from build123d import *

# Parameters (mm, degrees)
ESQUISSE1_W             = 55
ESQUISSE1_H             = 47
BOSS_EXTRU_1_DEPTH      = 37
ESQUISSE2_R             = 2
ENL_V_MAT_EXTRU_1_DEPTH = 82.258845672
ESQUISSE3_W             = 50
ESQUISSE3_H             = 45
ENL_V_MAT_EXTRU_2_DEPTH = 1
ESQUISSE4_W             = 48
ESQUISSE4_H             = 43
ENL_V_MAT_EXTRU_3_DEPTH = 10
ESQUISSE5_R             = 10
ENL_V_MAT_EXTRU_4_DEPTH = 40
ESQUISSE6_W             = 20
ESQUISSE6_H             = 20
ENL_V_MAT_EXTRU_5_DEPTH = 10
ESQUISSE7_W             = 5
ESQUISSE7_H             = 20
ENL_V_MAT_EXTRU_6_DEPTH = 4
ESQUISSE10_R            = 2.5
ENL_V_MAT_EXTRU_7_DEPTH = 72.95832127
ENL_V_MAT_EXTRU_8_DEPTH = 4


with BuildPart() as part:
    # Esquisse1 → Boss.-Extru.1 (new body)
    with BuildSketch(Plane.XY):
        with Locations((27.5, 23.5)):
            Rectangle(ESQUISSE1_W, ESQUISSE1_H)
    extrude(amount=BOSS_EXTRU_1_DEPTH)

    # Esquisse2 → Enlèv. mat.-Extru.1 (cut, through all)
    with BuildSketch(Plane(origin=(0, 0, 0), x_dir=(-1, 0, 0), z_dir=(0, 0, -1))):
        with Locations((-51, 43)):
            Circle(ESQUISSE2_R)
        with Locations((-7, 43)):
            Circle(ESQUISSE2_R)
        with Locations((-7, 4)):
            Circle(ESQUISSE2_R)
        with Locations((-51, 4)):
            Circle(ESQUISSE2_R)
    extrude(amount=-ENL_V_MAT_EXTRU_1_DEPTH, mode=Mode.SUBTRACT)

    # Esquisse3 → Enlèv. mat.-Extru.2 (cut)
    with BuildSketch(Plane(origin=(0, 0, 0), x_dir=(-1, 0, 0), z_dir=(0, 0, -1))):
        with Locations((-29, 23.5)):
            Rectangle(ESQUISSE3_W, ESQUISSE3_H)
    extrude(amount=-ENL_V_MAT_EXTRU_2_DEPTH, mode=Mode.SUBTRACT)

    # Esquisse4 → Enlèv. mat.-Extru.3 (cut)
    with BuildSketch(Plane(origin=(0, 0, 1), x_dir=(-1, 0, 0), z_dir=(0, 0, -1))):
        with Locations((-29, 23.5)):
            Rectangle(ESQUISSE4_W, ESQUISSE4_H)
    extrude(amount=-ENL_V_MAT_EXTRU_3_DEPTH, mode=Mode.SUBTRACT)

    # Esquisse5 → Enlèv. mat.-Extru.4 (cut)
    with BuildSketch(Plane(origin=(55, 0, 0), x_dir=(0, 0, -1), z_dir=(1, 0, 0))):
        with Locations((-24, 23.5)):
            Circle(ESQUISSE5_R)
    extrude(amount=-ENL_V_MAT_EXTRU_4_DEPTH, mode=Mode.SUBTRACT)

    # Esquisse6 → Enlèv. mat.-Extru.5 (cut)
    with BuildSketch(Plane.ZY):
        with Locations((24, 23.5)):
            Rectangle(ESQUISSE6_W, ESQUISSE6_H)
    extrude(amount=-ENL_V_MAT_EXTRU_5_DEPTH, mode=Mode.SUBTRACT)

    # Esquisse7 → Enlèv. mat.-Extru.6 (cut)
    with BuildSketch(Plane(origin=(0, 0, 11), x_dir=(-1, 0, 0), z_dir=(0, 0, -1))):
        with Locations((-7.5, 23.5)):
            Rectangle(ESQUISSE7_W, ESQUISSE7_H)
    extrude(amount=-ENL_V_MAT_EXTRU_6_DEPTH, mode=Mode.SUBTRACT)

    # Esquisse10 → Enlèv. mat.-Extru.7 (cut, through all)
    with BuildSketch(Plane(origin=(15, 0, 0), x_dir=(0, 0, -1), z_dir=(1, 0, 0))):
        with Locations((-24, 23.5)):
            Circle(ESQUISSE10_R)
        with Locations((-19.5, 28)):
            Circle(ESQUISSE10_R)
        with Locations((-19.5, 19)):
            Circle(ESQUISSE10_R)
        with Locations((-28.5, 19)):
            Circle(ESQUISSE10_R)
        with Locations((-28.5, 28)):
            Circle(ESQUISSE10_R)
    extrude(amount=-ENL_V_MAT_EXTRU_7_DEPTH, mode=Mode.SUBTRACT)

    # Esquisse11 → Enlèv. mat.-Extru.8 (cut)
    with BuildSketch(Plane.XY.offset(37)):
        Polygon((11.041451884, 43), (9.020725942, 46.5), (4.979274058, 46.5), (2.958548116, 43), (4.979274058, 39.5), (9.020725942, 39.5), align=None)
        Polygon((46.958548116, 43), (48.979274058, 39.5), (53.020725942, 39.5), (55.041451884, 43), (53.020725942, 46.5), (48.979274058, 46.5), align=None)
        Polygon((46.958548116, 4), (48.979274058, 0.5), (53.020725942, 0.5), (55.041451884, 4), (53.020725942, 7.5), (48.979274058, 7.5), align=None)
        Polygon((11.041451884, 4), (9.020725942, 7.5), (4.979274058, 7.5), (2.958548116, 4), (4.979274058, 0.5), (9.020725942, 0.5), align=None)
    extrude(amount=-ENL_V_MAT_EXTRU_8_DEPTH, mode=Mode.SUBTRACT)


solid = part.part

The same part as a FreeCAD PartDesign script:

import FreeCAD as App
import Part
import Sketcher
from FreeCAD import Vector
Q = App.Units.Quantity

doc = App.newDocument("Part")
body = doc.addObject("PartDesign::Body", "Body")

# Sketch on XY plane
sketch1 = body.newObject("Sketcher::SketchObject", "Sketch")
sketch1.AttachmentSupport = (doc.getObject("XY_Plane"), [""])
sketch1.MapMode = "FlatFace"
sketch1.addGeometry(Part.LineSegment(Vector(0, 47, 0), Vector(0, 0, 0)), False)
sketch1.addGeometry(Part.LineSegment(Vector(0, 0, 0), Vector(55, 0, 0)), False)
sketch1.addGeometry(Part.LineSegment(Vector(55, 0, 0), Vector(55, 47, 0)), False)
sketch1.addGeometry(Part.LineSegment(Vector(55, 47, 0), Vector(0, 47, 0)), False)
sketch1.addConstraint(Sketcher.Constraint("Coincident", 0, 2, 1, 1))
sketch1.addConstraint(Sketcher.Constraint("Coincident", 1, 2, 2, 1))
sketch1.addConstraint(Sketcher.Constraint("Coincident", 2, 2, 3, 1))
sketch1.addConstraint(Sketcher.Constraint("Coincident", 3, 2, 0, 1))
sketch1.addConstraint(Sketcher.Constraint("Vertical", 0))
sketch1.addConstraint(Sketcher.Constraint("Horizontal", 1))
sketch1.addConstraint(Sketcher.Constraint("Vertical", 2))
sketch1.addConstraint(Sketcher.Constraint("Horizontal", 3))
sketch1.addConstraint(Sketcher.Constraint("Coincident", 0, 2, -1, 1))
sketch1.addConstraint(Sketcher.Constraint("DistanceX", 1, 1, 1, 2, 55.0))
sketch1.addConstraint(Sketcher.Constraint("DistanceY", 0, 2, 0, 1, 47.0))
pad1 = body.newObject("PartDesign::Pad", "Pad")
pad1.Profile = sketch1
pad1.Length = 37

# Sketch on XY plane
sketch2 = body.newObject("Sketcher::SketchObject", "Sketch001")
sketch2.AttachmentSupport = (doc.getObject("XY_Plane"), [""])
sketch2.MapMode = "FlatFace"
sketch2.addGeometry(Part.Circle(Vector(51, 43, 0), Vector(0, 0, 1), 2), False)
sketch2.addGeometry(Part.Circle(Vector(7, 43, 0), Vector(0, 0, 1), 2), False)
sketch2.addGeometry(Part.Circle(Vector(7, 4, 0), Vector(0, 0, 1), 2), False)
sketch2.addGeometry(Part.Circle(Vector(51, 4, 0), Vector(0, 0, 1), 2), False)
sketch2.addConstraint(Sketcher.Constraint("Equal", 0, 1))
sketch2.addConstraint(Sketcher.Constraint("Equal", 1, 2))
sketch2.addConstraint(Sketcher.Constraint("Equal", 2, 3))
sketch2.addConstraint(Sketcher.Constraint("Horizontal", 0, 3, 1, 3))
sketch2.addConstraint(Sketcher.Constraint("Horizontal", 2, 3, 3, 3))
sketch2.addConstraint(Sketcher.Constraint("Vertical", 1, 3, 2, 3))
sketch2.addConstraint(Sketcher.Constraint("Vertical", 0, 3, 3, 3))
sketch2.addConstraint(Sketcher.Constraint("Diameter", 0, 4.0))
sketch2.addConstraint(Sketcher.Constraint("DistanceX", -1, 1, 0, 3, 51.0))
sketch2.addConstraint(Sketcher.Constraint("DistanceY", -1, 1, 0, 3, 43.0))
sketch2.addConstraint(Sketcher.Constraint("DistanceX", -1, 1, 1, 3, 7.0))
sketch2.addConstraint(Sketcher.Constraint("DistanceY", -1, 1, 2, 3, 4.0))
pocket1 = body.newObject("PartDesign::Pocket", "Pocket")
pocket1.Profile = sketch2
pocket1.Type = "ThroughAll"
pocket1.Reversed = True

# Sketch on XY plane
sketch3 = body.newObject("Sketcher::SketchObject", "Sketch002")
sketch3.AttachmentSupport = (doc.getObject("XY_Plane"), [""])
sketch3.MapMode = "FlatFace"
sketch3.addGeometry(Part.LineSegment(Vector(54, 46, 0), Vector(54, 1, 0)), False)
sketch3.addGeometry(Part.LineSegment(Vector(54, 1, 0), Vector(4, 1, 0)), False)
sketch3.addGeometry(Part.LineSegment(Vector(4, 1, 0), Vector(4, 46, 0)), False)
sketch3.addGeometry(Part.LineSegment(Vector(4, 46, 0), Vector(54, 46, 0)), False)
sketch3.addConstraint(Sketcher.Constraint("Coincident", 0, 2, 1, 1))
sketch3.addConstraint(Sketcher.Constraint("Coincident", 1, 2, 2, 1))
sketch3.addConstraint(Sketcher.Constraint("Coincident", 2, 2, 3, 1))
sketch3.addConstraint(Sketcher.Constraint("Coincident", 3, 2, 0, 1))
sketch3.addConstraint(Sketcher.Constraint("Vertical", 0))
sketch3.addConstraint(Sketcher.Constraint("Horizontal", 1))
sketch3.addConstraint(Sketcher.Constraint("Vertical", 2))
sketch3.addConstraint(Sketcher.Constraint("Horizontal", 3))
sketch3.addConstraint(Sketcher.Constraint("DistanceX", 1, 2, 1, 1, 50.0))
sketch3.addConstraint(Sketcher.Constraint("DistanceY", 0, 2, 0, 1, 45.0))
sketch3.addConstraint(Sketcher.Constraint("DistanceX", -1, 1, 0, 2, 54.0))
sketch3.addConstraint(Sketcher.Constraint("DistanceY", -1, 1, 0, 2, 1.0))
pocket2 = body.newObject("PartDesign::Pocket", "Pocket001")
pocket2.Profile = sketch3
pocket2.Length = 1
pocket2.Reversed = True

# Sketch on XY plane
sketch4 = body.newObject("Sketcher::SketchObject", "Sketch003")
sketch4.AttachmentSupport = (doc.getObject("XY_Plane"), [""])
sketch4.MapMode = "FlatFace"
sketch4.AttachmentOffset = App.Placement(Vector(0, 0, 1), App.Rotation())
sketch4.addGeometry(Part.LineSegment(Vector(53, 45, 0), Vector(53, 2, 0)), False)
sketch4.addGeometry(Part.LineSegment(Vector(53, 2, 0), Vector(5, 2, 0)), False)
sketch4.addGeometry(Part.LineSegment(Vector(5, 2, 0), Vector(5, 45, 0)), False)
sketch4.addGeometry(Part.LineSegment(Vector(5, 45, 0), Vector(53, 45, 0)), False)
sketch4.addConstraint(Sketcher.Constraint("Coincident", 0, 2, 1, 1))
sketch4.addConstraint(Sketcher.Constraint("Coincident", 1, 2, 2, 1))
sketch4.addConstraint(Sketcher.Constraint("Coincident", 2, 2, 3, 1))
sketch4.addConstraint(Sketcher.Constraint("Coincident", 3, 2, 0, 1))
sketch4.addConstraint(Sketcher.Constraint("Vertical", 0))
sketch4.addConstraint(Sketcher.Constraint("Horizontal", 1))
sketch4.addConstraint(Sketcher.Constraint("Vertical", 2))
sketch4.addConstraint(Sketcher.Constraint("Horizontal", 3))
sketch4.addConstraint(Sketcher.Constraint("DistanceX", 1, 2, 1, 1, 48.0))
sketch4.addConstraint(Sketcher.Constraint("DistanceY", 0, 2, 0, 1, 43.0))
sketch4.addConstraint(Sketcher.Constraint("DistanceX", -1, 1, 0, 2, 53.0))
sketch4.addConstraint(Sketcher.Constraint("DistanceY", -1, 1, 0, 2, 2.0))
pocket3 = body.newObject("PartDesign::Pocket", "Pocket002")
pocket3.Profile = sketch4
pocket3.Length = 10
pocket3.Reversed = True

# Sketch on YZ plane
sketch5 = body.newObject("Sketcher::SketchObject", "Sketch004")
sketch5.AttachmentSupport = (doc.getObject("YZ_Plane"), [""])
sketch5.MapMode = "FlatFace"
sketch5.AttachmentOffset = App.Placement(Vector(0, 0, 55), App.Rotation())
sketch5.addGeometry(Part.Circle(Vector(24, 24, 0), Vector(0, 0, 1), 10), False)
sketch5.addConstraint(Sketcher.Constraint("Diameter", 0, 20.0))
sketch5.addConstraint(Sketcher.Constraint("DistanceY", -1, 1, 0, 3, 24.0))
sketch5.addConstraint(Sketcher.Constraint("DistanceX", -1, 1, 0, 3, 23.5))
pocket4 = body.newObject("PartDesign::Pocket", "Pocket003")
pocket4.Profile = sketch5
pocket4.Length = 40

# Sketch on YZ plane
sketch6 = body.newObject("Sketcher::SketchObject", "Sketch005")
sketch6.AttachmentSupport = (doc.getObject("YZ_Plane"), [""])
sketch6.MapMode = "FlatFace"
sketch6.addGeometry(Part.LineSegment(Vector(34, 14, 0), Vector(14, 14, 0)), False)
sketch6.addGeometry(Part.LineSegment(Vector(14, 14, 0), Vector(14, 34, 0)), False)
sketch6.addGeometry(Part.LineSegment(Vector(14, 34, 0), Vector(34, 34, 0)), False)
sketch6.addGeometry(Part.LineSegment(Vector(34, 34, 0), Vector(34, 14, 0)), False)
sketch6.addConstraint(Sketcher.Constraint("Coincident", 0, 2, 1, 1))
sketch6.addConstraint(Sketcher.Constraint("Coincident", 1, 2, 2, 1))
sketch6.addConstraint(Sketcher.Constraint("Coincident", 2, 2, 3, 1))
sketch6.addConstraint(Sketcher.Constraint("Coincident", 3, 2, 0, 1))
sketch6.addConstraint(Sketcher.Constraint("Horizontal", 0))
sketch6.addConstraint(Sketcher.Constraint("Vertical", 1))
sketch6.addConstraint(Sketcher.Constraint("Horizontal", 2))
sketch6.addConstraint(Sketcher.Constraint("Vertical", 3))
sketch6.addConstraint(Sketcher.Constraint("Equal", 2, 1))
sketch6.addConstraint(Sketcher.Constraint("DistanceX", 0, 2, 0, 1, 20.0))
sketch6.addConstraint(Sketcher.Constraint("DistanceY", -1, 1, 0, 2, 14.0))
sketch6.addConstraint(Sketcher.Constraint("DistanceX", -1, 1, 0, 2, 13.5))
pocket5 = body.newObject("PartDesign::Pocket", "Pocket004")
pocket5.Profile = sketch6
pocket5.Length = 10
pocket5.Reversed = True

# Sketch on XY plane
sketch7 = body.newObject("Sketcher::SketchObject", "Sketch006")
sketch7.AttachmentSupport = (doc.getObject("XY_Plane"), [""])
sketch7.MapMode = "FlatFace"
sketch7.AttachmentOffset = App.Placement(Vector(0, 0, 11), App.Rotation())
sketch7.addGeometry(Part.LineSegment(Vector(10, 34, 0), Vector(10, 14, 0)), False)
sketch7.addGeometry(Part.LineSegment(Vector(10, 14, 0), Vector(5, 14, 0)), False)
sketch7.addGeometry(Part.LineSegment(Vector(5, 14, 0), Vector(5, 34, 0)), False)
sketch7.addGeometry(Part.LineSegment(Vector(5, 34, 0), Vector(10, 34, 0)), False)
sketch7.addConstraint(Sketcher.Constraint("Coincident", 0, 2, 1, 1))
sketch7.addConstraint(Sketcher.Constraint("Coincident", 1, 2, 2, 1))
sketch7.addConstraint(Sketcher.Constraint("Coincident", 2, 2, 3, 1))
sketch7.addConstraint(Sketcher.Constraint("Coincident", 3, 2, 0, 1))
sketch7.addConstraint(Sketcher.Constraint("Vertical", 0))
sketch7.addConstraint(Sketcher.Constraint("Horizontal", 1))
sketch7.addConstraint(Sketcher.Constraint("Vertical", 2))
sketch7.addConstraint(Sketcher.Constraint("Horizontal", 3))
sketch7.addConstraint(Sketcher.Constraint("DistanceX", 1, 2, 1, 1, 5.0))
sketch7.addConstraint(Sketcher.Constraint("DistanceY", 0, 2, 0, 1, 20.0))
sketch7.addConstraint(Sketcher.Constraint("DistanceX", -1, 1, 0, 2, 10.0))
sketch7.addConstraint(Sketcher.Constraint("DistanceY", -1, 1, 0, 2, 13.5))
pocket6 = body.newObject("PartDesign::Pocket", "Pocket005")
pocket6.Profile = sketch7
pocket6.Length = 4
pocket6.Reversed = True

# Sketch on YZ plane
sketch8 = body.newObject("Sketcher::SketchObject", "Sketch007")
sketch8.AttachmentSupport = (doc.getObject("YZ_Plane"), [""])
sketch8.MapMode = "FlatFace"
sketch8.AttachmentOffset = App.Placement(Vector(0, 0, 15), App.Rotation())
sketch8.addGeometry(Part.Circle(Vector(23.5, 24, 0), Vector(0, 0, 1), 2.5), False)
sketch8.addGeometry(Part.Circle(Vector(28, 19.5, 0), Vector(0, 0, 1), 2.5), False)
sketch8.addGeometry(Part.Circle(Vector(19, 19.5, 0), Vector(0, 0, 1), 2.5), False)
sketch8.addGeometry(Part.Circle(Vector(19, 28.5, 0), Vector(0, 0, 1), 2.5), False)
sketch8.addGeometry(Part.Circle(Vector(28, 28.5, 0), Vector(0, 0, 1), 2.5), False)
sketch8.addConstraint(Sketcher.Constraint("Equal", 0, 1))
sketch8.addConstraint(Sketcher.Constraint("Equal", 1, 2))
sketch8.addConstraint(Sketcher.Constraint("Equal", 2, 3))
sketch8.addConstraint(Sketcher.Constraint("Equal", 3, 4))
sketch8.addConstraint(Sketcher.Constraint("Horizontal", 1, 3, 2, 3))
sketch8.addConstraint(Sketcher.Constraint("Horizontal", 3, 3, 4, 3))
sketch8.addConstraint(Sketcher.Constraint("Vertical", 2, 3, 3, 3))
sketch8.addConstraint(Sketcher.Constraint("Vertical", 1, 3, 4, 3))
sketch8.addConstraint(Sketcher.Constraint("Diameter", 0, 5.0))
sketch8.addConstraint(Sketcher.Constraint("DistanceY", -1, 1, 0, 3, 24.0))
sketch8.addConstraint(Sketcher.Constraint("DistanceX", -1, 1, 1, 3, 28.0))
sketch8.addConstraint(Sketcher.Constraint("DistanceX", -1, 1, 2, 3, 19.0))
sketch8.addConstraint(Sketcher.Constraint("DistanceY", 2, 3, 3, 3, 9.0))
sketch8.addConstraint(Sketcher.Constraint("DistanceX", -1, 1, 0, 3, 23.5))
sketch8.addConstraint(Sketcher.Constraint("DistanceY", -1, 1, 1, 3, 19.5))
pocket7 = body.newObject("PartDesign::Pocket", "Pocket006")
pocket7.Profile = sketch8
pocket7.Type = "ThroughAll"

# Sketch on XY plane
sketch9 = body.newObject("Sketcher::SketchObject", "Sketch008")
sketch9.AttachmentSupport = (doc.getObject("XY_Plane"), [""])
sketch9.MapMode = "FlatFace"
sketch9.AttachmentOffset = App.Placement(Vector(0, 0, 37), App.Rotation())
sketch9.addGeometry(Part.LineSegment(Vector(11, 43, 0), Vector(9, 46.5, 0)), False)
sketch9.addGeometry(Part.LineSegment(Vector(9, 46.5, 0), Vector(5, 46.5, 0)), False)
sketch9.addGeometry(Part.LineSegment(Vector(5, 46.5, 0), Vector(3, 43, 0)), False)
sketch9.addGeometry(Part.LineSegment(Vector(3, 43, 0), Vector(5, 39.5, 0)), False)
sketch9.addGeometry(Part.LineSegment(Vector(5, 39.5, 0), Vector(9, 39.5, 0)), False)
sketch9.addGeometry(Part.LineSegment(Vector(9, 39.5, 0), Vector(11, 43, 0)), False)
sketch9.addGeometry(Part.LineSegment(Vector(47, 43, 0), Vector(49, 39.5, 0)), False)
sketch9.addGeometry(Part.LineSegment(Vector(49, 39.5, 0), Vector(53, 39.5, 0)), False)
sketch9.addGeometry(Part.LineSegment(Vector(53, 39.5, 0), Vector(55, 43, 0)), False)
sketch9.addGeometry(Part.LineSegment(Vector(55, 43, 0), Vector(53, 46.5, 0)), False)
sketch9.addGeometry(Part.LineSegment(Vector(53, 46.5, 0), Vector(49, 46.5, 0)), False)
sketch9.addGeometry(Part.LineSegment(Vector(49, 46.5, 0), Vector(47, 43, 0)), False)
sketch9.addGeometry(Part.LineSegment(Vector(47, 4, 0), Vector(49, 0.5, 0)), False)
sketch9.addGeometry(Part.LineSegment(Vector(49, 0.5, 0), Vector(53, 0.5, 0)), False)
sketch9.addGeometry(Part.LineSegment(Vector(53, 0.5, 0), Vector(55, 4, 0)), False)
sketch9.addGeometry(Part.LineSegment(Vector(55, 4, 0), Vector(53, 7.5, 0)), False)
sketch9.addGeometry(Part.LineSegment(Vector(53, 7.5, 0), Vector(49, 7.5, 0)), False)
sketch9.addGeometry(Part.LineSegment(Vector(49, 7.5, 0), Vector(47, 4, 0)), False)
sketch9.addGeometry(Part.LineSegment(Vector(11, 4, 0), Vector(9, 7.5, 0)), False)
sketch9.addGeometry(Part.LineSegment(Vector(9, 7.5, 0), Vector(5, 7.5, 0)), False)
sketch9.addGeometry(Part.LineSegment(Vector(5, 7.5, 0), Vector(3, 4, 0)), False)
sketch9.addGeometry(Part.LineSegment(Vector(3, 4, 0), Vector(5, 0.5, 0)), False)
sketch9.addGeometry(Part.LineSegment(Vector(5, 0.5, 0), Vector(9, 0.5, 0)), False)
sketch9.addGeometry(Part.LineSegment(Vector(9, 0.5, 0), Vector(11, 4, 0)), False)
sketch9.addConstraint(Sketcher.Constraint("Coincident", 0, 2, 1, 1))
sketch9.addConstraint(Sketcher.Constraint("Coincident", 1, 2, 2, 1))
sketch9.addConstraint(Sketcher.Constraint("Coincident", 2, 2, 3, 1))
sketch9.addConstraint(Sketcher.Constraint("Coincident", 3, 2, 4, 1))
sketch9.addConstraint(Sketcher.Constraint("Coincident", 4, 2, 5, 1))
sketch9.addConstraint(Sketcher.Constraint("Coincident", 5, 2, 0, 1))
sketch9.addConstraint(Sketcher.Constraint("Coincident", 6, 2, 7, 1))
sketch9.addConstraint(Sketcher.Constraint("Coincident", 7, 2, 8, 1))
sketch9.addConstraint(Sketcher.Constraint("Coincident", 8, 2, 9, 1))
sketch9.addConstraint(Sketcher.Constraint("Coincident", 9, 2, 10, 1))
sketch9.addConstraint(Sketcher.Constraint("Coincident", 10, 2, 11, 1))
sketch9.addConstraint(Sketcher.Constraint("Coincident", 11, 2, 6, 1))
sketch9.addConstraint(Sketcher.Constraint("Coincident", 12, 2, 13, 1))
sketch9.addConstraint(Sketcher.Constraint("Coincident", 13, 2, 14, 1))
sketch9.addConstraint(Sketcher.Constraint("Coincident", 14, 2, 15, 1))
sketch9.addConstraint(Sketcher.Constraint("Coincident", 15, 2, 16, 1))
sketch9.addConstraint(Sketcher.Constraint("Coincident", 16, 2, 17, 1))
sketch9.addConstraint(Sketcher.Constraint("Coincident", 17, 2, 12, 1))
sketch9.addConstraint(Sketcher.Constraint("Coincident", 18, 2, 19, 1))
sketch9.addConstraint(Sketcher.Constraint("Coincident", 19, 2, 20, 1))
sketch9.addConstraint(Sketcher.Constraint("Coincident", 20, 2, 21, 1))
sketch9.addConstraint(Sketcher.Constraint("Coincident", 21, 2, 22, 1))
sketch9.addConstraint(Sketcher.Constraint("Coincident", 22, 2, 23, 1))
sketch9.addConstraint(Sketcher.Constraint("Coincident", 23, 2, 18, 1))
sketch9.addConstraint(Sketcher.Constraint("Horizontal", 1))
sketch9.addConstraint(Sketcher.Constraint("Horizontal", 4))
sketch9.addConstraint(Sketcher.Constraint("Horizontal", 7))
sketch9.addConstraint(Sketcher.Constraint("Horizontal", 10))
sketch9.addConstraint(Sketcher.Constraint("Horizontal", 13))
sketch9.addConstraint(Sketcher.Constraint("Horizontal", 16))
sketch9.addConstraint(Sketcher.Constraint("Horizontal", 19))
sketch9.addConstraint(Sketcher.Constraint("Horizontal", 22))
sketch9.addConstraint(Sketcher.Constraint("Parallel", 0, 3))
sketch9.addConstraint(Sketcher.Constraint("Parallel", 2, 5))
sketch9.addConstraint(Sketcher.Constraint("Parallel", 3, 6))
sketch9.addConstraint(Sketcher.Constraint("Parallel", 5, 8))
sketch9.addConstraint(Sketcher.Constraint("Parallel", 6, 9))
sketch9.addConstraint(Sketcher.Constraint("Parallel", 8, 11))
sketch9.addConstraint(Sketcher.Constraint("Parallel", 9, 12))
sketch9.addConstraint(Sketcher.Constraint("Parallel", 11, 14))
sketch9.addConstraint(Sketcher.Constraint("Parallel", 12, 15))
sketch9.addConstraint(Sketcher.Constraint("Parallel", 14, 17))
sketch9.addConstraint(Sketcher.Constraint("Parallel", 15, 18))
sketch9.addConstraint(Sketcher.Constraint("Parallel", 17, 20))
sketch9.addConstraint(Sketcher.Constraint("Parallel", 18, 21))
sketch9.addConstraint(Sketcher.Constraint("Parallel", 20, 23))
sketch9.addConstraint(Sketcher.Constraint("Horizontal", 2, 2, 5, 2))
sketch9.addConstraint(Sketcher.Constraint("Horizontal", 4, 2, 6, 2))
sketch9.addConstraint(Sketcher.Constraint("Horizontal", 5, 2, 8, 2))
sketch9.addConstraint(Sketcher.Constraint("Horizontal", 1, 2, 9, 2))
sketch9.addConstraint(Sketcher.Constraint("Horizontal", 8, 2, 11, 2))
sketch9.addConstraint(Sketcher.Constraint("Horizontal", 14, 2, 17, 2))
sketch9.addConstraint(Sketcher.Constraint("Horizontal", 16, 2, 18, 2))
sketch9.addConstraint(Sketcher.Constraint("Horizontal", 17, 2, 20, 2))
sketch9.addConstraint(Sketcher.Constraint("Horizontal", 13, 2, 21, 2))
sketch9.addConstraint(Sketcher.Constraint("Horizontal", 20, 2, 23, 2))
sketch9.addConstraint(Sketcher.Constraint("Vertical", 1, 2, 3, 2))
sketch9.addConstraint(Sketcher.Constraint("Vertical", 0, 2, 4, 2))
sketch9.addConstraint(Sketcher.Constraint("Vertical", 10, 2, 12, 2))
sketch9.addConstraint(Sketcher.Constraint("Vertical", 9, 2, 13, 2))
sketch9.addConstraint(Sketcher.Constraint("Vertical", 8, 2, 14, 2))
sketch9.addConstraint(Sketcher.Constraint("Vertical", 13, 2, 15, 2))
sketch9.addConstraint(Sketcher.Constraint("Vertical", 4, 2, 18, 2))
sketch9.addConstraint(Sketcher.Constraint("Vertical", 3, 2, 19, 2))
sketch9.addConstraint(Sketcher.Constraint("Equal", 4, 7))
sketch9.addConstraint(Sketcher.Constraint("Angle", 0, Q("120 deg")))
sketch9.addConstraint(Sketcher.Constraint("DistanceY", -1, 1, 2, 2, 43.0))
sketch9.addConstraint(Sketcher.Constraint("DistanceY", -1, 1, 14, 2, 4.0))
sketch9.addConstraint(Sketcher.Constraint("DistanceY", 3, 2, 1, 2, 7.0))
sketch9.addConstraint(Sketcher.Constraint("DistanceX", 3, 2, 6, 2, 44.0))
sketch9.addConstraint(Sketcher.Constraint("DistanceX", 1, 2, 1, 1, 4.041452))
sketch9.addConstraint(Sketcher.Constraint("DistanceX", -1, 1, 2, 2, 2.958548))
pocket8 = body.newObject("PartDesign::Pocket", "Pocket007")
pocket8.Profile = sketch9
pocket8.Length = 4

doc.recompute()
